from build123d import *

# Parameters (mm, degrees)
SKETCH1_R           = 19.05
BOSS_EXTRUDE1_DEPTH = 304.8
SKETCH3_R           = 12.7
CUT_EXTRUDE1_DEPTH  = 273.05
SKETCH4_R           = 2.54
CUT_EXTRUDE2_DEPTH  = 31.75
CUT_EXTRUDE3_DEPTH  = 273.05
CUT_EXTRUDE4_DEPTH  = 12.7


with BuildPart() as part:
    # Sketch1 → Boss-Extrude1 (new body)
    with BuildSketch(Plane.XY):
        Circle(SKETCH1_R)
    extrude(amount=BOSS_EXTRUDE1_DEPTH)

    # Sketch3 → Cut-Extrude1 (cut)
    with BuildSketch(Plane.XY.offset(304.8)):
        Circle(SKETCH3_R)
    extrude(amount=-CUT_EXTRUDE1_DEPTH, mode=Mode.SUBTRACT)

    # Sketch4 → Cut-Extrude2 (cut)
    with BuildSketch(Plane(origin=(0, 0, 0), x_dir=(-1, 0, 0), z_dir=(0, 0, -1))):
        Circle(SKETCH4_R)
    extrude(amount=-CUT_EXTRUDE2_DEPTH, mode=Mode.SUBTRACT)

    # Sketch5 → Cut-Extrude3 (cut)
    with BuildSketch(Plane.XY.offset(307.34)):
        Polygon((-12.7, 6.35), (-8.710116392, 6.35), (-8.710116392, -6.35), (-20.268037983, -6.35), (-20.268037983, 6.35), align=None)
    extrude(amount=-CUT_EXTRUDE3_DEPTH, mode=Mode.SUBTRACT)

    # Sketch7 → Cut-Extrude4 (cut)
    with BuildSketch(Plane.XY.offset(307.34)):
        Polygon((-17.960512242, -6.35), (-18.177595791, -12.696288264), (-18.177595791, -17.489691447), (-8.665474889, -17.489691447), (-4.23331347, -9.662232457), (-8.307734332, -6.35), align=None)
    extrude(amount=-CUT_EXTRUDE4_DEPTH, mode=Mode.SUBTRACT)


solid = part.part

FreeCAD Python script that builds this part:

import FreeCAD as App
import Part
import Sketcher
from FreeCAD import Vector
Q = App.Units.Quantity

doc = App.newDocument("Part")
body = doc.addObject("PartDesign::Body", "Body")

# Sketch on XY plane
sketch1 = body.newObject("Sketcher::SketchObject", "Sketch")
sketch1.AttachmentSupport = (doc.getObject("XY_Plane"), [""])
sketch1.MapMode = "FlatFace"
sketch1.addGeometry(Part.Circle(Vector(0, 0, 0), Vector(0, 0, 1), 19), False)
sketch1.addConstraint(Sketcher.Constraint("Coincident", 0, 3, -1, 1))
sketch1.addConstraint(Sketcher.Constraint("Diameter", 0, Q("1.5 in")))
pad1 = body.newObject("PartDesign::Pad", "Pad")
pad1.Profile = sketch1
pad1.Length = Q("12 in")

# Sketch on XY plane
sketch2 = body.newObject("Sketcher::SketchObject", "Sketch001")
sketch2.AttachmentSupport = (doc.getObject("XY_Plane"), [""])
sketch2.MapMode = "FlatFace"
sketch2.AttachmentOffset = App.Placement(Vector(0, 0, 12 * 25.4), App.Rotation())
sketch2.addGeometry(Part.Circle(Vector(0, 0, 0), Vector(0, 0, 1), 13), False)
sketch2.addConstraint(Sketcher.Constraint("Coincident", 0, 3, -1, 1))
sketch2.addConstraint(Sketcher.Constraint("Diameter", 0, Q("1 in")))
pocket1 = body.newObject("PartDesign::Pocket", "Pocket")
pocket1.Profile = sketch2
pocket1.Length = Q("10.75 in")

# Sketch on XY plane
sketch3 = body.newObject("Sketcher::SketchObject", "Sketch002")
sketch3.AttachmentSupport = (doc.getObject("XY_Plane"), [""])
sketch3.MapMode = "FlatFace"
sketch3.addGeometry(Part.Circle(Vector(0, 0, 0), Vector(0, 0, 1), 2.5), False)
sketch3.addConstraint(Sketcher.Constraint("Coincident", 0, 3, -1, 1))
sketch3.addConstraint(Sketcher.Constraint("Diameter", 0, Q("0.2 in")))
pocket2 = body.newObject("PartDesign::Pocket", "Pocket001")
pocket2.Profile = sketch3
pocket2.Length = Q("1.25 in")
pocket2.Reversed = True

# Sketch on XY plane
sketch4 = body.newObject("Sketcher::SketchObject", "Sketch003")
sketch4.AttachmentSupport = (doc.getObject("XY_Plane"), [""])
sketch4.MapMode = "FlatFace"
sketch4.AttachmentOffset = App.Placement(Vector(0, 0, 12.1 * 25.4), App.Rotation())
sketch4.addGeometry(Part.LineSegment(Vector(-9, 6, 0), Vector(-20, 6, 0)), False)
sketch4.addGeometry(Part.LineSegment(Vector(-20, 6, 0), Vector(-20, -6, 0)), False)
sketch4.addGeometry(Part.LineSegment(Vector(-20, -6, 0), Vector(-9, -6, 0)), False)
sketch4.addGeometry(Part.LineSegment(Vector(-9, -6, 0), Vector(-9, 6, 0)), False)
sketch4.addConstraint(Sketcher.Constraint("Coincident", 0, 2, 1, 1))
sketch4.addConstraint(Sketcher.Constraint("Coincident", 1, 2, 2, 1))
sketch4.addConstraint(Sketcher.Constraint("Coincident", 2, 2, 3, 1))
sketch4.addConstraint(Sketcher.Constraint("Coincident", 3, 2, 0, 1))
sketch4.addConstraint(Sketcher.Constraint("Horizontal", 0))
sketch4.addConstraint(Sketcher.Constraint("Vertical", 1))
sketch4.addConstraint(Sketcher.Constraint("Horizontal", 2))
sketch4.addConstraint(Sketcher.Constraint("Vertical", 3))
sketch4.addConstraint(Sketcher.Constraint("DistanceY", 1, 2, 1, 1, Q("0.5 in")))
sketch4.addConstraint(Sketcher.Constraint("DistanceY", -1, 1, 0, 2, Q("0.25 in")))
sketch4.addConstraint(Sketcher.Constraint("DistanceX", 0, 2, 0, 1, 11.557922))
sketch4.addConstraint(Sketcher.Constraint("DistanceX", 0, 2, -1, 1, 20.268038))
pocket3 = body.newObject("PartDesign::Pocket", "Pocket002")
pocket3.Profile = sketch4
pocket3.Length = Q("10.75 in")

# Sketch on XY plane
sketch5 = body.newObject("Sketcher::SketchObject", "Sketch004")
sketch5.AttachmentSupport = (doc.getObject("XY_Plane"), [""])
sketch5.MapMode = "FlatFace"
sketch5.AttachmentOffset = App.Placement(Vector(0, 0, 12.1 * 25.4), App.Rotation())
sketch5.addGeometry(Part.LineSegment(Vector(-18, -6.3, 0), Vector(-18.2, -12.7, 0)), False)
sketch5.addGeometry(Part.LineSegment(Vector(-18.2, -12.7, 0), Vector(-18.2, -17.5, 0)), False)
sketch5.addGeometry(Part.LineSegment(Vector(-18.2, -17.5, 0), Vector(-8.7, -17.5, 0)), False)
sketch5.addGeometry(Part.LineSegment(Vector(-8.7, -17.5, 0), Vector(-4.2, -9.7, 0)), False)
sketch5.addGeometry(Part.LineSegment(Vector(-4.2, -9.7, 0), Vector(-8.3, -6.3, 0)), False)
sketch5.addGeometry(Part.LineSegment(Vector(-8.3, -6.3, 0), Vector(-18, -6.3, 0)), False)
sketch5.addConstraint(Sketcher.Constraint("Coincident", 0, 2, 1, 1))
sketch5.addConstraint(Sketcher.Constraint("Coincident", 1, 2, 2, 1))
sketch5.addConstraint(Sketcher.Constraint("Coincident", 2, 2, 3, 1))
sketch5.addConstraint(Sketcher.Constraint("Coincident", 3, 2, 4, 1))
sketch5.addConstraint(Sketcher.Constraint("Coincident", 4, 2, 5, 1))
sketch5.addConstraint(Sketcher.Constraint("Coincident", 5, 2, 0, 1))
sketch5.addConstraint(Sketcher.Constraint("Vertical", 1))
sketch5.addConstraint(Sketcher.Constraint("Horizontal", 2))
sketch5.addConstraint(Sketcher.Constraint("Horizontal", 5))
sketch5.addConstraint(Sketcher.Constraint("Distance", 0, Q("0.25 in")))
sketch5.addConstraint(Sketcher.Constraint("DistanceY", 4, 2, -1, 1, Q("0.25 in")))
sketch5.addConstraint(Sketcher.Constraint("DistanceX", 2, 1, 2, 2, 9.512121))
sketch5.addConstraint(Sketcher.Constraint("DistanceX", 5, 2, 3, 2, 13.727199))
sketch5.addConstraint(Sketcher.Constraint("DistanceX", 5, 2, 5, 1, 9.652778))
sketch5.addConstraint(Sketcher.Constraint("DistanceY", 1, 2, 1, 1, 4.793403))
sketch5.addConstraint(Sketcher.Constraint("DistanceY", 0, 2, -1, 1, 12.696288))
sketch5.addConstraint(Sketcher.Constraint("DistanceY", 2, 2, 3, 2, 7.827459))
sketch5.addConstraint(Sketcher.Constraint("DistanceX", 0, 2, -1, 1, 18.177596))
pocket4 = body.newObject("PartDesign::Pocket", "Pocket003")
pocket4.Profile = sketch5
pocket4.Length = Q("0.5 in")

doc.recompute()
